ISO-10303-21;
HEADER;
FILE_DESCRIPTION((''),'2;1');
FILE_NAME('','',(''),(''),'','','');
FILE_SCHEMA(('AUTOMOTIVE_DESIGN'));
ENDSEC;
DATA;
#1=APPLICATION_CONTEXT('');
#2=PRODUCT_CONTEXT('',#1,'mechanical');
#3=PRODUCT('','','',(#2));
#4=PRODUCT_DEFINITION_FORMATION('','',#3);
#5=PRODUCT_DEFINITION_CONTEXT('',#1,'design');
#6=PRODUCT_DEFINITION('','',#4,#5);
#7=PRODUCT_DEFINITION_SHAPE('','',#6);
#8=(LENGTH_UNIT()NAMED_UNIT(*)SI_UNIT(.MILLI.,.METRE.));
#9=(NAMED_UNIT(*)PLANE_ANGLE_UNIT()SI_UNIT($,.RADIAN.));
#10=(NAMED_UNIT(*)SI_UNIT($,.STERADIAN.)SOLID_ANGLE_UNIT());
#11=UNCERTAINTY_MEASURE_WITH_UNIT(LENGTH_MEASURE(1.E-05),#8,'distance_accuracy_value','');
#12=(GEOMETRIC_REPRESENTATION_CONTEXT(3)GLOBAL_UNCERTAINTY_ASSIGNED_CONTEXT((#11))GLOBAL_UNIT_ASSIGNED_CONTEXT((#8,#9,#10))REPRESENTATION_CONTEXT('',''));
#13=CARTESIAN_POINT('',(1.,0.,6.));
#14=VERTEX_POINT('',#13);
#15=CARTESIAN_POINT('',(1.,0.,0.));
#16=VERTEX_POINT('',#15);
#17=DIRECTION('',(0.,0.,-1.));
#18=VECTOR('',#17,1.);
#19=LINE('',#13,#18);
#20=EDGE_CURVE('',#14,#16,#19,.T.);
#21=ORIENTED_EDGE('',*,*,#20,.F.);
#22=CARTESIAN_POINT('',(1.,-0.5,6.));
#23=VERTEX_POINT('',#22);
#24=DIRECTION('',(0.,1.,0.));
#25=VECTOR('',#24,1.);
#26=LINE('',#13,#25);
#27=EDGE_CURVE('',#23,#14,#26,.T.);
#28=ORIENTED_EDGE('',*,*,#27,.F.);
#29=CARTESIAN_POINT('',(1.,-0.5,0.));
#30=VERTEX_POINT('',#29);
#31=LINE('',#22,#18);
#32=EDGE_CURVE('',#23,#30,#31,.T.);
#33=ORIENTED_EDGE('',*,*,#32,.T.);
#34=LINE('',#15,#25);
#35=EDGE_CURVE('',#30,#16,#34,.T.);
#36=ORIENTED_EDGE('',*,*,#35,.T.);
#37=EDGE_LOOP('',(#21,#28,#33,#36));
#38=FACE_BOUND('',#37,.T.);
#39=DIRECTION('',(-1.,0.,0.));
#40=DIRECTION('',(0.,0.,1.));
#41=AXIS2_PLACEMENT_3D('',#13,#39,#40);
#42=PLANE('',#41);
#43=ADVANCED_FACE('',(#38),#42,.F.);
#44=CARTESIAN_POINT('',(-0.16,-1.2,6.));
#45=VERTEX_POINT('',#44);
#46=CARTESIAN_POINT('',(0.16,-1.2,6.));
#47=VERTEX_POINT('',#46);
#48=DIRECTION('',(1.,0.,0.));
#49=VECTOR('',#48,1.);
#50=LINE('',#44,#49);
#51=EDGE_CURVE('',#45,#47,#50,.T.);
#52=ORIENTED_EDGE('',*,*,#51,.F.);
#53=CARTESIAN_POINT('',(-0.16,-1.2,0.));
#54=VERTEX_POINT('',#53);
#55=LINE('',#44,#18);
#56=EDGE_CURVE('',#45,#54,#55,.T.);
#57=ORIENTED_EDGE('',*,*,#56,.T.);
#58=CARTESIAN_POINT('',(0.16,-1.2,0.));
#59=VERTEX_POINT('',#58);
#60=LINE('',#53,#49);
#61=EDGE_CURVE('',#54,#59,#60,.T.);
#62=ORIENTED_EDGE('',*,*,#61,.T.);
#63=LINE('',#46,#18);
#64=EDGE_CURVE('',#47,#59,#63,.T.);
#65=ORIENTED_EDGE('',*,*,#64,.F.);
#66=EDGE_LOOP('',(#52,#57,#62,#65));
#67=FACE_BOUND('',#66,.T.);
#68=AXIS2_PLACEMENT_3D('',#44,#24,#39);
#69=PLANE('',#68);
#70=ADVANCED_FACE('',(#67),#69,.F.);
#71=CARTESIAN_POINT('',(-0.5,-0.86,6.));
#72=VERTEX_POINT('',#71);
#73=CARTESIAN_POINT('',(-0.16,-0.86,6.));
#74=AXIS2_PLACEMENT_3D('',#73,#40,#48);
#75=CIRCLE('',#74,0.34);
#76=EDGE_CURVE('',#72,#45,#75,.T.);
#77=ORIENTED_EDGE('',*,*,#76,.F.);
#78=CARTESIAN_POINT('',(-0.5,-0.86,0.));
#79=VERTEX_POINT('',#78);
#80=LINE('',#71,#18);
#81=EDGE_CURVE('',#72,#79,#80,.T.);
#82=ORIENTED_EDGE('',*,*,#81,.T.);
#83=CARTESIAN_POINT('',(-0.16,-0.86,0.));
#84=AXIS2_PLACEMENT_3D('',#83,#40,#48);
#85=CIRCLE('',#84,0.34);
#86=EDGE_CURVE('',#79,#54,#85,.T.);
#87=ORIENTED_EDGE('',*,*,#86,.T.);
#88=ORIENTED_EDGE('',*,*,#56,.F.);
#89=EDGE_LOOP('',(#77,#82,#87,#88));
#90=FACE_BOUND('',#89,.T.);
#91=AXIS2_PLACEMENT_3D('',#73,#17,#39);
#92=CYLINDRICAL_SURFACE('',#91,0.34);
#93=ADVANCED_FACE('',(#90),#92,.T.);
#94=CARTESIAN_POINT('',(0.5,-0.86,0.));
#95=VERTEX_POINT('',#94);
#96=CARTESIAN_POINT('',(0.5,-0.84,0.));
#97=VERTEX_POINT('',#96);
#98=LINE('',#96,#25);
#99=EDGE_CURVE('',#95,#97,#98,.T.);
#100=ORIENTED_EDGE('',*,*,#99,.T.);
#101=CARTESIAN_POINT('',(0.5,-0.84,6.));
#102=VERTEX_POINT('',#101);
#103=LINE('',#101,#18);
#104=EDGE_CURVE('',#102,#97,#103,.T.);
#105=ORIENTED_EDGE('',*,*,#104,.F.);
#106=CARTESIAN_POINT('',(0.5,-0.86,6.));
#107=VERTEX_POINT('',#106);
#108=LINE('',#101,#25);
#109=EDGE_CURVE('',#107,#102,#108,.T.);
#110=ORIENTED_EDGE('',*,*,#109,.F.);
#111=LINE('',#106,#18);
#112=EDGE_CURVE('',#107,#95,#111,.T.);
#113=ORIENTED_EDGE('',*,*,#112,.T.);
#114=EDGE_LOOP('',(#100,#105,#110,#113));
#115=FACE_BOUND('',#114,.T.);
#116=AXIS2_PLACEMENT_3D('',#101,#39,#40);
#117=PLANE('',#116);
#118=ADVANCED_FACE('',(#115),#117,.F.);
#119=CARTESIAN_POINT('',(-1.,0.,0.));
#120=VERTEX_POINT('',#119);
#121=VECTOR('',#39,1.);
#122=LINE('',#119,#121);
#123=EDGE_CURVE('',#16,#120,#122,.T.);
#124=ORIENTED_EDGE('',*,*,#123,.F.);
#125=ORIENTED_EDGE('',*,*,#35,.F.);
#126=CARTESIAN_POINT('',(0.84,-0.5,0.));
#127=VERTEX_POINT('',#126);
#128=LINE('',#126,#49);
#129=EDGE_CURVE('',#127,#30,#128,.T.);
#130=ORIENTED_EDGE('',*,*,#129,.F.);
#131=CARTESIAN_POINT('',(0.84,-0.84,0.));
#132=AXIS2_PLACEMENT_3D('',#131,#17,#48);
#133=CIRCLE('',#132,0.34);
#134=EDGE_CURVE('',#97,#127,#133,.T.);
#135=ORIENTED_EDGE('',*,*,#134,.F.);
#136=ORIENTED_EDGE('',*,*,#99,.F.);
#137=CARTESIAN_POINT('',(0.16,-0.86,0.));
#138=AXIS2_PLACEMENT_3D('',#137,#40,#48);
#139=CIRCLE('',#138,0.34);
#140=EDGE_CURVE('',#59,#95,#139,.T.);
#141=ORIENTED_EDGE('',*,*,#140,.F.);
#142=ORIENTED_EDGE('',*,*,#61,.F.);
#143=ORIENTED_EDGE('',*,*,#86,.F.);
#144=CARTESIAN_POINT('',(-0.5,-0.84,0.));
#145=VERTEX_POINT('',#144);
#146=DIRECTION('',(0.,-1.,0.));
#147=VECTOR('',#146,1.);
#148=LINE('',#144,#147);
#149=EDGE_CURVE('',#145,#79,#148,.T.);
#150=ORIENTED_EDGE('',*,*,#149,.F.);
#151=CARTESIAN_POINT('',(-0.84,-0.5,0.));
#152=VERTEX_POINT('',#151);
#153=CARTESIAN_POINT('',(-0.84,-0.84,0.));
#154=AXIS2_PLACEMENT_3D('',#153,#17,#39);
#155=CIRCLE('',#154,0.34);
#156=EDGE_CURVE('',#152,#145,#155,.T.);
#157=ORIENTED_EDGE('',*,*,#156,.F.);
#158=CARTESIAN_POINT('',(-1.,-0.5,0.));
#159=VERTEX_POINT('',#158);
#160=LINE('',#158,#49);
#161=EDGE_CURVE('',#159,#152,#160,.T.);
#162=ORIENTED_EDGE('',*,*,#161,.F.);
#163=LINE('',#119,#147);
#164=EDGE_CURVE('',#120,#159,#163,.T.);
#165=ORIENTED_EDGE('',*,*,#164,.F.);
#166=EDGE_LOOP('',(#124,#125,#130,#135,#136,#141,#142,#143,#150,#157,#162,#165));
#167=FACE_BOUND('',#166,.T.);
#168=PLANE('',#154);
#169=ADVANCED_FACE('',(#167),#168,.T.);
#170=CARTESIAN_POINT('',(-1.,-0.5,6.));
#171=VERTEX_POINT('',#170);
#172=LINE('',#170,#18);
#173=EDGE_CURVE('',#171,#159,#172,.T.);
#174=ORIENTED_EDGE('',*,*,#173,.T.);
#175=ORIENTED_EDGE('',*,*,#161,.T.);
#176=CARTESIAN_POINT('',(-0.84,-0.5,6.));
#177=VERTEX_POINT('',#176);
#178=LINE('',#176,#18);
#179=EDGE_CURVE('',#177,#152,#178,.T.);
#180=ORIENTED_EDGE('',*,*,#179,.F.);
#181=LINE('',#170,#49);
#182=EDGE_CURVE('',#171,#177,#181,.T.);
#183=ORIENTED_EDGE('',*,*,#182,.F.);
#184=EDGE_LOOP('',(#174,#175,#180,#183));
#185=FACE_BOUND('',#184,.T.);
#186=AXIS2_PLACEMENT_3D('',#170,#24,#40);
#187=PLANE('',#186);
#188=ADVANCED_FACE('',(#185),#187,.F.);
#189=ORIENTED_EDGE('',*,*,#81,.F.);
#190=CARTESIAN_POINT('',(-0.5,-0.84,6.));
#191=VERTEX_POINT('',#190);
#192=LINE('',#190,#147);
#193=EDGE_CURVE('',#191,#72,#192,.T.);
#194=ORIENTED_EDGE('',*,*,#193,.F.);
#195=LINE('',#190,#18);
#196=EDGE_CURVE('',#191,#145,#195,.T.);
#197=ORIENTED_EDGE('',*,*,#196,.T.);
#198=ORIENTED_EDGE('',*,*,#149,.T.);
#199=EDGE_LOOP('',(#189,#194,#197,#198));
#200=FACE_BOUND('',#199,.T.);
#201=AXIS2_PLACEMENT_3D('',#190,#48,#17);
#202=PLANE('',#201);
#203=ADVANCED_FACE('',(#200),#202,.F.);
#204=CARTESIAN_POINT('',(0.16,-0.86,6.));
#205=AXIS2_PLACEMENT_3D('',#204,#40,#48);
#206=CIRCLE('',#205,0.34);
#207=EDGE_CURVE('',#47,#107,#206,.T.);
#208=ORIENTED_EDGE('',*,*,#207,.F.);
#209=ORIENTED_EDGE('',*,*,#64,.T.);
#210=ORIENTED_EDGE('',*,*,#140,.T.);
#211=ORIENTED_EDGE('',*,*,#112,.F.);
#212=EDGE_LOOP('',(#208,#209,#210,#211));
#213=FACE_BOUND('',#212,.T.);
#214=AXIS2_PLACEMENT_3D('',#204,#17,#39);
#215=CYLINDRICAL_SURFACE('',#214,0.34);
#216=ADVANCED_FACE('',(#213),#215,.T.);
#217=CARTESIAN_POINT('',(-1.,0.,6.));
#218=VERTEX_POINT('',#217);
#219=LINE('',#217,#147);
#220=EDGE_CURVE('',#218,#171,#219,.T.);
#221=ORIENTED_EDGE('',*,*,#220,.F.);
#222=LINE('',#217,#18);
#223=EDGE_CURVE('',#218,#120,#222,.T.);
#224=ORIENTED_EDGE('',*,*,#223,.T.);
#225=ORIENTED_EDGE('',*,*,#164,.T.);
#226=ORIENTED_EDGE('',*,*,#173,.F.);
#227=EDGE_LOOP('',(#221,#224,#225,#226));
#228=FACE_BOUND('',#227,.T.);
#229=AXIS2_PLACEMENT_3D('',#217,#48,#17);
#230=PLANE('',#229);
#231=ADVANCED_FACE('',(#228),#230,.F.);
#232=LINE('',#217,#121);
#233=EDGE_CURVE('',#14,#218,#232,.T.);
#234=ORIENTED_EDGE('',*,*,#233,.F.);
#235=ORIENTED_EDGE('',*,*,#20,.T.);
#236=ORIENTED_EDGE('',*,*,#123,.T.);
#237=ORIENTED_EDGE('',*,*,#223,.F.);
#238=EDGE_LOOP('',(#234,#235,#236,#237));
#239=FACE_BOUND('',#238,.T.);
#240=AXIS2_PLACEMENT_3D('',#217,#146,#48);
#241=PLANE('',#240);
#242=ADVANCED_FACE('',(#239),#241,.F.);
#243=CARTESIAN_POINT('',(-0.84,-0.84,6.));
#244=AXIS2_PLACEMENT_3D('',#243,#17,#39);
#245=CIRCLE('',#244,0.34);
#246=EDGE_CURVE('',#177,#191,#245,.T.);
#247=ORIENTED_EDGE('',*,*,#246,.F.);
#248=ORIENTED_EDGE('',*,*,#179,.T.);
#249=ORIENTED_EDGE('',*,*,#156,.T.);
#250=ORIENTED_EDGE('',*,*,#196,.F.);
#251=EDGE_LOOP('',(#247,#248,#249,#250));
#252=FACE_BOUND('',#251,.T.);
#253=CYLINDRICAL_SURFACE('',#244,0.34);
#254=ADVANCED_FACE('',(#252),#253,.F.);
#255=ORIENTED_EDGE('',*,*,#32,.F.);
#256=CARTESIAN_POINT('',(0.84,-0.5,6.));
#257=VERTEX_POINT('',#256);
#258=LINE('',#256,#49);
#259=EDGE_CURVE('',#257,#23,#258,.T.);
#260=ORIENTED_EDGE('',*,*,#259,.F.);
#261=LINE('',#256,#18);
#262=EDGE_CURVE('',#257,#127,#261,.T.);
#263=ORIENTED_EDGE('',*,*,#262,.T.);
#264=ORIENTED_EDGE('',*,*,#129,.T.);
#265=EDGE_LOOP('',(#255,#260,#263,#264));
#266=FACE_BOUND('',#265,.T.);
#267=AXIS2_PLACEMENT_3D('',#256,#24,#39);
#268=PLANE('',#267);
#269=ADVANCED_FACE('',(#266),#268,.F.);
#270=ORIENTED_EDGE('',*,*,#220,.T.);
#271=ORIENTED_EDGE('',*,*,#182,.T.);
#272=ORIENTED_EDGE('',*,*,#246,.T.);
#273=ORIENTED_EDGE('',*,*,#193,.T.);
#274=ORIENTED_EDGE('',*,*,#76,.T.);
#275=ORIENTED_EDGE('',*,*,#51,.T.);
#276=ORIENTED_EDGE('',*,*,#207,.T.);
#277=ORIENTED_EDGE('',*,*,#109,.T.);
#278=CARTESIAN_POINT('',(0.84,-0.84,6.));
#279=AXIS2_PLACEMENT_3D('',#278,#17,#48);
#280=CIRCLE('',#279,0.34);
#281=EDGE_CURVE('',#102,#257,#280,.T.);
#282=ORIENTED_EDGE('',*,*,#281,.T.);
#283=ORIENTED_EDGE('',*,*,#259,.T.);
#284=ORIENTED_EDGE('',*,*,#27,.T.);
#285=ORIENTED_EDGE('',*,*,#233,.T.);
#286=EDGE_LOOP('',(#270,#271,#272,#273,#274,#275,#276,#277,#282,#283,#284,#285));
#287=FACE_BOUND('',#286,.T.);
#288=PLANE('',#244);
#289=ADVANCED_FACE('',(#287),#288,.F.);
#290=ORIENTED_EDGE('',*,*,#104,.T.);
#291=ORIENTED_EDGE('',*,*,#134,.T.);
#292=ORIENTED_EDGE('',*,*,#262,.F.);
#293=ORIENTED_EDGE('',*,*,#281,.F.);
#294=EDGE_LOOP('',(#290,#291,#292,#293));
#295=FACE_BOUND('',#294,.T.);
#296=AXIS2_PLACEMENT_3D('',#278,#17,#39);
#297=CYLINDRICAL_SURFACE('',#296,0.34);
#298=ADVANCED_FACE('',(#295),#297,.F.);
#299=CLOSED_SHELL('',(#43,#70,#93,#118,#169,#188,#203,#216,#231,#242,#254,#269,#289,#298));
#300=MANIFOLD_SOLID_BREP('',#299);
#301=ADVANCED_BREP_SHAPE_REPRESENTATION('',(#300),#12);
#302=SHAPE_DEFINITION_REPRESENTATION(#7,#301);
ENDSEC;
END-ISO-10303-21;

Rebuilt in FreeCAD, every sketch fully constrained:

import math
import FreeCAD as App
import Part
import Sketcher
Q = App.Units.Quantity

doc = App.newDocument("Part")
body = doc.addObject("PartDesign::Body", "Body")

sketch1 = doc.addObject("Sketcher::SketchObject", "Sketch")
body.addObject(sketch1)
sketch1.AttachmentSupport = (doc.XY_Plane, [""])
sketch1.MapMode = "FlatFace"
sketch1.addGeometry([
    Part.LineSegment(App.Vector(1, 0, 0), App.Vector(-1, 0, 0)),
    Part.LineSegment(App.Vector(-1, 0, 0), App.Vector(-1, -0.5, 0)),
    Part.LineSegment(App.Vector(-1, -0.5, 0), App.Vector(-0.84, -0.5, 0)),
    Part.ArcOfCircle(Part.Circle(App.Vector(-0.84, -0.84, 0), App.Vector(0, 0, 1), 0.34), math.radians(0), math.radians(90)),
    Part.LineSegment(App.Vector(-0.5, -0.84, 0), App.Vector(-0.5, -0.86, 0)),
    Part.ArcOfCircle(Part.Circle(App.Vector(-0.16, -0.86, 0), App.Vector(0, 0, 1), 0.34), math.radians(180), math.radians(270)),
    Part.LineSegment(App.Vector(-0.16, -1.2, 0), App.Vector(0.16, -1.2, 0)),
    Part.ArcOfCircle(Part.Circle(App.Vector(0.16, -0.86, 0), App.Vector(0, 0, 1), 0.34), math.radians(-90), math.radians(0)),
    Part.LineSegment(App.Vector(0.5, -0.86, 0), App.Vector(0.5, -0.84, 0)),
    Part.ArcOfCircle(Part.Circle(App.Vector(0.84, -0.84, 0), App.Vector(0, 0, 1), 0.34), math.radians(90), math.radians(180)),
    Part.LineSegment(App.Vector(0.84, -0.5, 0), App.Vector(1, -0.5, 0)),
    Part.LineSegment(App.Vector(1, -0.5, 0), App.Vector(1, 0, 0)),
], False)
sketch1.addConstraint([
    Sketcher.Constraint("Coincident", 0, 2, 1, 1),
    Sketcher.Constraint("Coincident", 1, 2, 2, 1),
    Sketcher.Constraint("Tangent", 2, 2, 3, 2),
    Sketcher.Constraint("Tangent", 3, 1, 4, 1),
    Sketcher.Constraint("Tangent", 4, 2, 5, 1),
    Sketcher.Constraint("Tangent", 5, 2, 6, 1),
    Sketcher.Constraint("Tangent", 6, 2, 7, 1),
    Sketcher.Constraint("Tangent", 7, 2, 8, 1),
    Sketcher.Constraint("Tangent", 8, 2, 9, 2),
    Sketcher.Constraint("Tangent", 9, 1, 10, 1),
    Sketcher.Constraint("Coincident", 10, 2, 11, 1),
    Sketcher.Constraint("Coincident", 11, 2, 0, 1),
    Sketcher.Constraint("Horizontal", 0),
    Sketcher.Constraint("Vertical", 1),
    Sketcher.Constraint("Horizontal", 2),
    Sketcher.Constraint("Vertical", 4),
    Sketcher.Constraint("Horizontal", 6),
    Sketcher.Constraint("Vertical", 8),
    Sketcher.Constraint("Horizontal", 10),
    Sketcher.Constraint("Vertical", 11),
    Sketcher.Constraint("Equal", 3, 5),
    Sketcher.Constraint("Equal", 5, 7),
    Sketcher.Constraint("Equal", 7, 9),
    Sketcher.Constraint("Symmetric", 0, 2, 11, 2, -1, 1),
    Sketcher.Constraint("Symmetric", 3, 3, 9, 3, -2),
    Sketcher.Constraint("DistanceX", 0, 2, 0, 1, Q("2 mm")),
    Sketcher.Constraint("Radius", 3, Q("0.34 mm")),
    Sketcher.Constraint("DistanceY", 1, 2, 1, 1, Q("0.5 mm")),
    Sketcher.Constraint("DistanceX", 3, 3, 7, 3, Q("1 mm")),
    Sketcher.Constraint("DistanceY", 4, 2, 4, 1, Q("0.02 mm")),
])
pad1 = doc.addObject("PartDesign::Pad", "Pad")
body.addObject(pad1)
pad1.Profile = sketch1
pad1.Length = 6

doc.recompute()
